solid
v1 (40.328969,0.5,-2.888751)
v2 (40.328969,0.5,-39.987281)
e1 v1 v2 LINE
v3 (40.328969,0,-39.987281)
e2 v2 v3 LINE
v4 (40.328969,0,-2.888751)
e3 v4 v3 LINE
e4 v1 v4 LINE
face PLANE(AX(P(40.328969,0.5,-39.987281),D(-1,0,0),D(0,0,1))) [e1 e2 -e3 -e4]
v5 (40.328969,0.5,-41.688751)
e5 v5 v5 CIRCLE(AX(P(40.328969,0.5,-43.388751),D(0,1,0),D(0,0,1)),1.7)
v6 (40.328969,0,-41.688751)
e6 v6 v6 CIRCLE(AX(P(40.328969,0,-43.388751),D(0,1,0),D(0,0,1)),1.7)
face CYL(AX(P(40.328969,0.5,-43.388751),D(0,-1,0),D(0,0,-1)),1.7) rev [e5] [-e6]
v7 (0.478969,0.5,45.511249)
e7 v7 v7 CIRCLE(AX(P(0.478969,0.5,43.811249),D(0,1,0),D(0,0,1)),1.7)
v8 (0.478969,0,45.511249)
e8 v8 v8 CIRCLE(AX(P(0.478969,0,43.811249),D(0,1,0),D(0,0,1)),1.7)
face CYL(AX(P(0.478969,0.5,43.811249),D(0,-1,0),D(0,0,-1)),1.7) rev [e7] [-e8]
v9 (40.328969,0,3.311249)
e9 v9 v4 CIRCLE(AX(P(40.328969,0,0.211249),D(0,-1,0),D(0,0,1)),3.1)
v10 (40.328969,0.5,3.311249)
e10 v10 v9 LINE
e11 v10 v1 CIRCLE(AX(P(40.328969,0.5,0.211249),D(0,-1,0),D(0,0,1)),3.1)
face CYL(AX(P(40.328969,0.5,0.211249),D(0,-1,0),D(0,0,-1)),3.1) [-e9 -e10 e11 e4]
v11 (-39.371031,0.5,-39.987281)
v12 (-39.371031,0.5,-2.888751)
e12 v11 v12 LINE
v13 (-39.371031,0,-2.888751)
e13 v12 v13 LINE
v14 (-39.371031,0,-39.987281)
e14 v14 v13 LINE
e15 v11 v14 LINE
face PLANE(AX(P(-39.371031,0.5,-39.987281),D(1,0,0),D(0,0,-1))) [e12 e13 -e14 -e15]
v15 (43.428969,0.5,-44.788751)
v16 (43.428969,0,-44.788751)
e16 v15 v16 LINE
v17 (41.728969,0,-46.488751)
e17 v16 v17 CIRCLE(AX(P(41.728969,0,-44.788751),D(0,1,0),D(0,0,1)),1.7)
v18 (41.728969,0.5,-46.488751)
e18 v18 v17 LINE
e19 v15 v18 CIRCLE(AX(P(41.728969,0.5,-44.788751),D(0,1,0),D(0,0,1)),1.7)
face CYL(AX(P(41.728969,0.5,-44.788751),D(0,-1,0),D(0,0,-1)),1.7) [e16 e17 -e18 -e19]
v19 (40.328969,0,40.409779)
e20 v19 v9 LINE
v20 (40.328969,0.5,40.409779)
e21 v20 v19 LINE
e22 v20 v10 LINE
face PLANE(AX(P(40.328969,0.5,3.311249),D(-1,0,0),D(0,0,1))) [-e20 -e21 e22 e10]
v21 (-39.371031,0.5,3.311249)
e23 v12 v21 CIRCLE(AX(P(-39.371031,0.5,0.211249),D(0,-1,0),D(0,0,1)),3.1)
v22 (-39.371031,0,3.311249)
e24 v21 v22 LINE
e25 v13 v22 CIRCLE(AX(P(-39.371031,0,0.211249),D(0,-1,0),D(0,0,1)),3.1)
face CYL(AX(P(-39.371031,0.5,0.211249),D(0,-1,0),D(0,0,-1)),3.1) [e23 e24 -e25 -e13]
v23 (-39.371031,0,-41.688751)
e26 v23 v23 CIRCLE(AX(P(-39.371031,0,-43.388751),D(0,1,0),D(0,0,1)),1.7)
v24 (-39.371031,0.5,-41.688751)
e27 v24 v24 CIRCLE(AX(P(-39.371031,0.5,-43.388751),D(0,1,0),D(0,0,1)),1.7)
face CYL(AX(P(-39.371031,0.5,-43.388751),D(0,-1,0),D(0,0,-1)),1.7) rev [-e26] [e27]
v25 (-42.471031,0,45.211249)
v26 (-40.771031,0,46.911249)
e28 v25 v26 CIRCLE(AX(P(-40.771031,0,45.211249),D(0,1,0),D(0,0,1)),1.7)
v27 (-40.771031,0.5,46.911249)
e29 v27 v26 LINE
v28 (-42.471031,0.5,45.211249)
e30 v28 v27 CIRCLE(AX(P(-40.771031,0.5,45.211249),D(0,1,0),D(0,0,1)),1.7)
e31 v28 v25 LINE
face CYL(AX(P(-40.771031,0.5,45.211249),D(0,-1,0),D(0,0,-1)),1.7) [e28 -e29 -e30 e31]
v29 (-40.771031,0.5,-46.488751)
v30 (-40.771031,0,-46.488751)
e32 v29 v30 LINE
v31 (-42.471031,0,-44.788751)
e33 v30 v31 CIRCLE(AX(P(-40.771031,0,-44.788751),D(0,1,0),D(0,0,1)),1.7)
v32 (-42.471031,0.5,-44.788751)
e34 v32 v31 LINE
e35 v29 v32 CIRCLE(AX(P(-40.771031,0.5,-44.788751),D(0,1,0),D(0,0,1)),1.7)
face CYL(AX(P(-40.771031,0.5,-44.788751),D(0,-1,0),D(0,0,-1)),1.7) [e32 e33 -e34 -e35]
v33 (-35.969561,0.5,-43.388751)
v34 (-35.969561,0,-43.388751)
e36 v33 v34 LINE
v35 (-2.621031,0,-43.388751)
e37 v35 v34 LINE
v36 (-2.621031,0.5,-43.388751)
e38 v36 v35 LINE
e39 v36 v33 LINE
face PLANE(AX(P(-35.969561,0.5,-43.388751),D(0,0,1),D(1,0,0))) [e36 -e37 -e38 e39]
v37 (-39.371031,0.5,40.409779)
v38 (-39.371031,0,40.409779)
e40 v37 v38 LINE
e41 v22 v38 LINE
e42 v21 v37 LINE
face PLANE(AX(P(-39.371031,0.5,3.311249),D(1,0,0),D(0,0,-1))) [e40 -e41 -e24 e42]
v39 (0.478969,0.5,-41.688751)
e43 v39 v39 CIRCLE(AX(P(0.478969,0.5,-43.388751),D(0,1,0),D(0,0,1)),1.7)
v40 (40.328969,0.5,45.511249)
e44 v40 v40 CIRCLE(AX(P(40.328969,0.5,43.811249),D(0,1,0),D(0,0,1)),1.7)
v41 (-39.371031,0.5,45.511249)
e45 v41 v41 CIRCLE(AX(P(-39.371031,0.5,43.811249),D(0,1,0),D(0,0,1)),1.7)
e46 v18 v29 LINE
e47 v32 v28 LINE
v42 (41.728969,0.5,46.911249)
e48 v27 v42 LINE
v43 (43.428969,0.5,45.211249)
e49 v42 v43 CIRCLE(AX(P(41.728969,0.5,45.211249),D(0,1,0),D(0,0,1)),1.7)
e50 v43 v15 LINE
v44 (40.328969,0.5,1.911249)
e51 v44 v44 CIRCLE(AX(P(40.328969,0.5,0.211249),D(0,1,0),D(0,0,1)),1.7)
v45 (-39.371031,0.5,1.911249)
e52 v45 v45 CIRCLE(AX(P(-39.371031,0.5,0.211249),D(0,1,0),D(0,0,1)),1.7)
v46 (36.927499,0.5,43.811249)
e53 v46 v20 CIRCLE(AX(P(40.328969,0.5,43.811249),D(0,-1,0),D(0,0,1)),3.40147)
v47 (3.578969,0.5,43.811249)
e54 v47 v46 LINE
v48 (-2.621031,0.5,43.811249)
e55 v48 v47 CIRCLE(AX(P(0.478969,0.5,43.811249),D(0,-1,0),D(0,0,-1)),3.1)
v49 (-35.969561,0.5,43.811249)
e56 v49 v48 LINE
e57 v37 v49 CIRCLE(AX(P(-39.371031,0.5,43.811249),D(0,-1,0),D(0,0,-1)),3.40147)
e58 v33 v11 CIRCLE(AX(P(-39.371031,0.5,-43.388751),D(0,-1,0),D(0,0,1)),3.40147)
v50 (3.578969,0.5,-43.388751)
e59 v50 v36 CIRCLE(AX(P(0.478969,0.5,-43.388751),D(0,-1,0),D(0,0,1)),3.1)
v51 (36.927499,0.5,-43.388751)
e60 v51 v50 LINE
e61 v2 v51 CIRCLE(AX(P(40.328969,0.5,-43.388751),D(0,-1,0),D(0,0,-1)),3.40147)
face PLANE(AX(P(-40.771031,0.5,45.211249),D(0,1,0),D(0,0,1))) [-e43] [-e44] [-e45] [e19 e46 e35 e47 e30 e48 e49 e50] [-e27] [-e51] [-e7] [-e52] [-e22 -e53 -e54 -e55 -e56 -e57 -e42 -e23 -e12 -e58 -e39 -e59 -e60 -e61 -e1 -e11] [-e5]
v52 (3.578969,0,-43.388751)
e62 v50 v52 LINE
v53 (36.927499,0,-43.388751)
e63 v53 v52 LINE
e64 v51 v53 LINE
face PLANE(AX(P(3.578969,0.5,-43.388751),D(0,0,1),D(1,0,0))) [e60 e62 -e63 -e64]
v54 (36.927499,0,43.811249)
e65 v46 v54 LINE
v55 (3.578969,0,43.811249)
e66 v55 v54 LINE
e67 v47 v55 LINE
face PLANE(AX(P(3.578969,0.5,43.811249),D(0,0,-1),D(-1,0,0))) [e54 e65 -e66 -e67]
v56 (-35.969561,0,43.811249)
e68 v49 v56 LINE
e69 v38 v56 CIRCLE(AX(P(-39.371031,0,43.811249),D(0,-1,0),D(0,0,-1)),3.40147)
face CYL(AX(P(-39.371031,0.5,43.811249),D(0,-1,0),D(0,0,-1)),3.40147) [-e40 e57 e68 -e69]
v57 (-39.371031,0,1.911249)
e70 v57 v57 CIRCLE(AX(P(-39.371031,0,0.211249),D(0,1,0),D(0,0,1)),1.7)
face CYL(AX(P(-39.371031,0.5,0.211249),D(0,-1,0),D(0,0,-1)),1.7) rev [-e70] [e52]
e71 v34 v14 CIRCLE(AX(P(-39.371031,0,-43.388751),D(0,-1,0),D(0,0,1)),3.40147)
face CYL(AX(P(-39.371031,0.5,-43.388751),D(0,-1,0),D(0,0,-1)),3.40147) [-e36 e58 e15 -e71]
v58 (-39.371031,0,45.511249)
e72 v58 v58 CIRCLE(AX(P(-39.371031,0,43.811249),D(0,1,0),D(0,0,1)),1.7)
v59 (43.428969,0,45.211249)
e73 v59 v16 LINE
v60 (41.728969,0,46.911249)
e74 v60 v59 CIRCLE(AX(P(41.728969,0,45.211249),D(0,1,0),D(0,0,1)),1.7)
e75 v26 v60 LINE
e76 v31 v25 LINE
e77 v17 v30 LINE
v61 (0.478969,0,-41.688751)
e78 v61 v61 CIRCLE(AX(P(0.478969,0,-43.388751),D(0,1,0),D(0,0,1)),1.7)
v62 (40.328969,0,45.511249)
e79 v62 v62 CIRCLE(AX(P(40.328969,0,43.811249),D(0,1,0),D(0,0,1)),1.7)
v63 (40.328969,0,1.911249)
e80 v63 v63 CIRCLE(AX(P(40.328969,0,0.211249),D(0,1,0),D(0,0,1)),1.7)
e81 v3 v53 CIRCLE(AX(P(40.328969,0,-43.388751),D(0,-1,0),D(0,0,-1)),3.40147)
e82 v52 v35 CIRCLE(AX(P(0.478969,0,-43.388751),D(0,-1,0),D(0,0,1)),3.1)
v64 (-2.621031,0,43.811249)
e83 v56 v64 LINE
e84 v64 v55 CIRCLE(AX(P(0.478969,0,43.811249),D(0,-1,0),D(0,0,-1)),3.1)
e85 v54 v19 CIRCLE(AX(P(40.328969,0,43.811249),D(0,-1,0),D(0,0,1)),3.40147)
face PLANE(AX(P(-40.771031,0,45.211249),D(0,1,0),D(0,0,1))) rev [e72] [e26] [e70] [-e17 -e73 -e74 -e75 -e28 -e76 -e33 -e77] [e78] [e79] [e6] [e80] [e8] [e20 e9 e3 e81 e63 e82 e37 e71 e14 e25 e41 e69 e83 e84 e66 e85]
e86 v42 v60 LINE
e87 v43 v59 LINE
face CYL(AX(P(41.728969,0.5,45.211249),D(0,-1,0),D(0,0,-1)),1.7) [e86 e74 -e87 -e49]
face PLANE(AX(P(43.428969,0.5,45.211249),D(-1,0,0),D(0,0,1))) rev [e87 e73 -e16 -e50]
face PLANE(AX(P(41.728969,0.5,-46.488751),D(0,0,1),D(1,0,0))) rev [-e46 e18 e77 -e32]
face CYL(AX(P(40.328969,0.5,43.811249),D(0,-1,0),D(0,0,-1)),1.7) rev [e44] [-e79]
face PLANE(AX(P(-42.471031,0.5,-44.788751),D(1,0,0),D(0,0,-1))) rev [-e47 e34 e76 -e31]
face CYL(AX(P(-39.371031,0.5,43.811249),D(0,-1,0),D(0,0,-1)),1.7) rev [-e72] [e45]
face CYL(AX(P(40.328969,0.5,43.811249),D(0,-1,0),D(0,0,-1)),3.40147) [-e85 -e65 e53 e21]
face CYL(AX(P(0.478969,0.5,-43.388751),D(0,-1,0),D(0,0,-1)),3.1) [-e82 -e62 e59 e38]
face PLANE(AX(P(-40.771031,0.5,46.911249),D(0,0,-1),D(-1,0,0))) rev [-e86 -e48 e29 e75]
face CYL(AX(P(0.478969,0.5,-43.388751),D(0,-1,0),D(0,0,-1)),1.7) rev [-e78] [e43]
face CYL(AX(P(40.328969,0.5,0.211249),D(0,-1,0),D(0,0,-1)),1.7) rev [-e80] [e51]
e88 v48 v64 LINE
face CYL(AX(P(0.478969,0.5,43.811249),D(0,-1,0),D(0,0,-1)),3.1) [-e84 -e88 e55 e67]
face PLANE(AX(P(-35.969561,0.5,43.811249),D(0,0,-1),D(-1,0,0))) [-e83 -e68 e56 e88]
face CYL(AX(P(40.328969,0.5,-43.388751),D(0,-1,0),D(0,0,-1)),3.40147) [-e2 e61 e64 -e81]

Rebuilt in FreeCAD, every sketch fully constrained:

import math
import FreeCAD as App
import Part
import Sketcher
from FreeCAD import Vector

doc = App.newDocument("Part")
body = doc.addObject("PartDesign::Body", "Body")

sketch1 = body.newObject("Sketcher::SketchObject", "Sketch")
sketch1.AttachmentSupport = (doc.getObject("XZ_Plane"), [""])
sketch1.MapMode = "FlatFace"
sketch1.addGeometry([
    Part.LineSegment(Vector(-40.8, 46.9, 0), Vector(41.7, 46.9, 0)),
    Part.ArcOfCircle(Part.Circle(Vector(41.7, 45.2, 0), Vector(0, 0, 1), 1.7), math.radians(0), math.radians(90)),
    Part.LineSegment(Vector(43.4, 45.2, 0), Vector(43.4, -44.8, 0)),
    Part.ArcOfCircle(Part.Circle(Vector(41.7, -44.8, 0), Vector(0, 0, 1), 1.7), math.radians(-90), math.radians(0)),
    Part.LineSegment(Vector(41.7, -46.5, 0), Vector(-40.8, -46.5, 0)),
    Part.ArcOfCircle(Part.Circle(Vector(-40.8, -44.8, 0), Vector(0, 0, 1), 1.7), math.radians(180), math.radians(270)),
    Part.LineSegment(Vector(-42.5, -44.8, 0), Vector(-42.5, 45.2, 0)),
    Part.ArcOfCircle(Part.Circle(Vector(-40.8, 45.2, 0), Vector(0, 0, 1), 1.7), math.radians(90), math.radians(180)),
    Part.Circle(Vector(-39.4, 43.8, 0), Vector(0, 0, 1), 1.7),
    Part.Circle(Vector(0.5, 43.8, 0), Vector(0, 0, 1), 1.7),
    Part.Circle(Vector(40.3, 43.8, 0), Vector(0, 0, 1), 1.7),
    Part.Circle(Vector(-39.4, 0.2, 0), Vector(0, 0, 1), 1.7),
    Part.Circle(Vector(-39.4, -43.4, 0), Vector(0, 0, 1), 1.7),
    Part.LineSegment(Vector(-39.4, -2.9, 0), Vector(-39.4, -40, 0)),
    Part.ArcOfCircle(Part.Circle(Vector(-39.4, -43.4, 0), Vector(0, 0, 1), 3.4), math.radians(0), math.radians(90)),
    Part.LineSegment(Vector(-36, -43.4, 0), Vector(-2.6, -43.4, 0)),
    Part.ArcOfCircle(Part.Circle(Vector(0.5, -43.4, 0), Vector(0, 0, 1), 3.1), math.radians(0), math.radians(180)),
    Part.LineSegment(Vector(3.6, -43.4, 0), Vector(36.9, -43.4, 0)),
    Part.ArcOfCircle(Part.Circle(Vector(40.3, -43.4, 0), Vector(0, 0, 1), 3.4), math.radians(90), math.radians(180)),
    Part.LineSegment(Vector(40.3, -40, 0), Vector(40.3, -2.9, 0)),
    Part.ArcOfCircle(Part.Circle(Vector(40.3, 0.2, 0), Vector(0, 0, 1), 3.1), math.radians(90), math.radians(270)),
    Part.LineSegment(Vector(40.3, 3.3, 0), Vector(40.3, 40.4, 0)),
    Part.ArcOfCircle(Part.Circle(Vector(40.3, 43.8, 0), Vector(0, 0, 1), 3.4), math.radians(180), math.radians(270)),
    Part.LineSegment(Vector(36.9, 43.8, 0), Vector(3.6, 43.8, 0)),
    Part.ArcOfCircle(Part.Circle(Vector(0.5, 43.8, 0), Vector(0, 0, 1), 3.1), math.radians(180), math.radians(360)),
    Part.LineSegment(Vector(-2.6, 43.8, 0), Vector(-36, 43.8, 0)),
    Part.ArcOfCircle(Part.Circle(Vector(-39.4, 43.8, 0), Vector(0, 0, 1), 3.4), math.radians(-90), math.radians(0)),
    Part.LineSegment(Vector(-39.4, 40.4, 0), Vector(-39.4, 3.3, 0)),
    Part.ArcOfCircle(Part.Circle(Vector(-39.4, 0.2, 0), Vector(0, 0, 1), 3.1), math.radians(-90), math.radians(90)),
    Part.Circle(Vector(40.3, 0.2, 0), Vector(0, 0, 1), 1.7),
    Part.Circle(Vector(0.5, -43.4, 0), Vector(0, 0, 1), 1.7),
    Part.Circle(Vector(40.3, -43.4, 0), Vector(0, 0, 1), 1.7),
], False)
sketch1.addConstraint([
    Sketcher.Constraint("Tangent", 0, 2, 1, 2),
    Sketcher.Constraint("Tangent", 1, 1, 2, 1),
    Sketcher.Constraint("Tangent", 2, 2, 3, 2),
    Sketcher.Constraint("Tangent", 3, 1, 4, 1),
    Sketcher.Constraint("Tangent", 4, 2, 5, 2),
    Sketcher.Constraint("Tangent", 5, 1, 6, 1),
    Sketcher.Constraint("Tangent", 6, 2, 7, 2),
    Sketcher.Constraint("Tangent", 7, 1, 0, 1),
    Sketcher.Constraint("Coincident", 13, 2, 14, 2),
    Sketcher.Constraint("Coincident", 14, 1, 15, 1),
    Sketcher.Constraint("Coincident", 15, 2, 16, 2),
    Sketcher.Constraint("Coincident", 16, 1, 17, 1),
    Sketcher.Constraint("Coincident", 17, 2, 18, 2),
    Sketcher.Constraint("Coincident", 18, 1, 19, 1),
    Sketcher.Constraint("Coincident", 19, 2, 20, 2),
    Sketcher.Constraint("Coincident", 20, 1, 21, 1),
    Sketcher.Constraint("Coincident", 21, 2, 22, 2),
    Sketcher.Constraint("Coincident", 22, 1, 23, 1),
    Sketcher.Constraint("Coincident", 23, 2, 24, 2),
    Sketcher.Constraint("Coincident", 24, 1, 25, 1),
    Sketcher.Constraint("Coincident", 25, 2, 26, 2),
    Sketcher.Constraint("Coincident", 26, 1, 27, 1),
    Sketcher.Constraint("Coincident", 27, 2, 28, 2),
    Sketcher.Constraint("Coincident", 28, 1, 13, 1),
    Sketcher.Constraint("Horizontal", 0),
    Sketcher.Constraint("Vertical", 2),
    Sketcher.Constraint("Horizontal", 4),
    Sketcher.Constraint("Vertical", 6),
    Sketcher.Constraint("Vertical", 13),
    Sketcher.Constraint("Horizontal", 15),
    Sketcher.Constraint("Horizontal", 17),
    Sketcher.Constraint("Vertical", 19),
    Sketcher.Constraint("Vertical", 21),
    Sketcher.Constraint("Horizontal", 23),
    Sketcher.Constraint("Horizontal", 25),
    Sketcher.Constraint("Vertical", 27),
    Sketcher.Constraint("Coincident", 14, 3, 12, 3),
    Sketcher.Constraint("Coincident", 22, 3, 10, 3),
    Sketcher.Constraint("Coincident", 24, 3, 9, 3),
    Sketcher.Constraint("Coincident", 26, 3, 8, 3),
    Sketcher.Constraint("Coincident", 28, 3, 11, 3),
    Sketcher.Constraint("Coincident", 29, 3, 20, 3),
    Sketcher.Constraint("Coincident", 30, 3, 16, 3),
    Sketcher.Constraint("Coincident", 31, 3, 18, 3),
    Sketcher.Constraint("Equal", 1, 3),
    Sketcher.Constraint("Equal", 3, 5),
    Sketcher.Constraint("Equal", 5, 7),
    Sketcher.Constraint("Equal", 7, 8),
    Sketcher.Constraint("Equal", 8, 9),
    Sketcher.Constraint("Equal", 9, 10),
    Sketcher.Constraint("Equal", 10, 11),
    Sketcher.Constraint("Equal", 11, 12),
    Sketcher.Constraint("Equal", 14, 18),
    Sketcher.Constraint("Equal", 16, 20),
    Sketcher.Constraint("Equal", 18, 22),
    Sketcher.Constraint("Equal", 20, 24),
    Sketcher.Constraint("Equal", 22, 26),
    Sketcher.Constraint("Equal", 24, 28),
    Sketcher.Constraint("Equal", 12, 29),
    Sketcher.Constraint("Equal", 29, 30),
    Sketcher.Constraint("Equal", 30, 31),
    Sketcher.Constraint("Horizontal", 8, 3, 9, 3),
    Sketcher.Constraint("Horizontal", 9, 3, 10, 3),
    Sketcher.Constraint("Horizontal", 14, 3, 16, 3),
    Sketcher.Constraint("Horizontal", 16, 3, 18, 3),
    Sketcher.Constraint("Horizontal", 11, 3, 20, 3),
    Sketcher.Constraint("Horizontal", 31, 3, 14, 1),
    Sketcher.Constraint("Horizontal", 15, 2, 16, 1),
    Sketcher.Constraint("Horizontal", 26, 3, 22, 1),
    Sketcher.Constraint("Horizontal", 23, 2, 24, 1),
    Sketcher.Constraint("Vertical", 8, 3, 11, 3),
    Sketcher.Constraint("Vertical", 11, 3, 12, 3),
    Sketcher.Constraint("Vertical", 9, 3, 16, 3),
    Sketcher.Constraint("Vertical", 10, 3, 18, 3),
    Sketcher.Constraint("Vertical", 18, 3, 20, 3),
    Sketcher.Constraint("Vertical", 28, 3, 13, 2),
    Sketcher.Constraint("Vertical", 31, 3, 18, 1),
    Sketcher.Constraint("Vertical", 19, 2, 20, 1),
    Sketcher.Constraint("Vertical", 13, 2, 26, 1),
    Sketcher.Constraint("Equal", 15, 17),
    Sketcher.Constraint("Equal", 19, 21),
    Sketcher.Constraint("Diameter", 8, 3.4),
    Sketcher.Constraint("Radius", 16, 3.1),
    Sketcher.Constraint("DistanceY", 2, 2, 2, 1, 90.0),
    Sketcher.Constraint("DistanceX", 0, 1, 0, 2, 82.5),
    Sketcher.Constraint("DistanceY", 5, 3, 11, 3, 45.0),
    Sketcher.Constraint("DistanceX", 7, 3, 8, 3, 1.4),
    Sketcher.Constraint("DistanceY", 8, 3, 7, 3, 1.4),
    Sketcher.Constraint("DistanceX", 10, 3, 1, 3, 1.4),
    Sketcher.Constraint("Radius", 14, 3.40147),
    Sketcher.Constraint("DistanceX", -1, 1, 17, 2, 36.927499),
    Sketcher.Constraint("DistanceY", -1, 1, 1, 3, 45.211249),
])
pad1 = body.newObject("PartDesign::Pad", "Pad")
pad1.Profile = sketch1
pad1.Length = 0.5
pad1.Reversed = True

doc.recompute()
